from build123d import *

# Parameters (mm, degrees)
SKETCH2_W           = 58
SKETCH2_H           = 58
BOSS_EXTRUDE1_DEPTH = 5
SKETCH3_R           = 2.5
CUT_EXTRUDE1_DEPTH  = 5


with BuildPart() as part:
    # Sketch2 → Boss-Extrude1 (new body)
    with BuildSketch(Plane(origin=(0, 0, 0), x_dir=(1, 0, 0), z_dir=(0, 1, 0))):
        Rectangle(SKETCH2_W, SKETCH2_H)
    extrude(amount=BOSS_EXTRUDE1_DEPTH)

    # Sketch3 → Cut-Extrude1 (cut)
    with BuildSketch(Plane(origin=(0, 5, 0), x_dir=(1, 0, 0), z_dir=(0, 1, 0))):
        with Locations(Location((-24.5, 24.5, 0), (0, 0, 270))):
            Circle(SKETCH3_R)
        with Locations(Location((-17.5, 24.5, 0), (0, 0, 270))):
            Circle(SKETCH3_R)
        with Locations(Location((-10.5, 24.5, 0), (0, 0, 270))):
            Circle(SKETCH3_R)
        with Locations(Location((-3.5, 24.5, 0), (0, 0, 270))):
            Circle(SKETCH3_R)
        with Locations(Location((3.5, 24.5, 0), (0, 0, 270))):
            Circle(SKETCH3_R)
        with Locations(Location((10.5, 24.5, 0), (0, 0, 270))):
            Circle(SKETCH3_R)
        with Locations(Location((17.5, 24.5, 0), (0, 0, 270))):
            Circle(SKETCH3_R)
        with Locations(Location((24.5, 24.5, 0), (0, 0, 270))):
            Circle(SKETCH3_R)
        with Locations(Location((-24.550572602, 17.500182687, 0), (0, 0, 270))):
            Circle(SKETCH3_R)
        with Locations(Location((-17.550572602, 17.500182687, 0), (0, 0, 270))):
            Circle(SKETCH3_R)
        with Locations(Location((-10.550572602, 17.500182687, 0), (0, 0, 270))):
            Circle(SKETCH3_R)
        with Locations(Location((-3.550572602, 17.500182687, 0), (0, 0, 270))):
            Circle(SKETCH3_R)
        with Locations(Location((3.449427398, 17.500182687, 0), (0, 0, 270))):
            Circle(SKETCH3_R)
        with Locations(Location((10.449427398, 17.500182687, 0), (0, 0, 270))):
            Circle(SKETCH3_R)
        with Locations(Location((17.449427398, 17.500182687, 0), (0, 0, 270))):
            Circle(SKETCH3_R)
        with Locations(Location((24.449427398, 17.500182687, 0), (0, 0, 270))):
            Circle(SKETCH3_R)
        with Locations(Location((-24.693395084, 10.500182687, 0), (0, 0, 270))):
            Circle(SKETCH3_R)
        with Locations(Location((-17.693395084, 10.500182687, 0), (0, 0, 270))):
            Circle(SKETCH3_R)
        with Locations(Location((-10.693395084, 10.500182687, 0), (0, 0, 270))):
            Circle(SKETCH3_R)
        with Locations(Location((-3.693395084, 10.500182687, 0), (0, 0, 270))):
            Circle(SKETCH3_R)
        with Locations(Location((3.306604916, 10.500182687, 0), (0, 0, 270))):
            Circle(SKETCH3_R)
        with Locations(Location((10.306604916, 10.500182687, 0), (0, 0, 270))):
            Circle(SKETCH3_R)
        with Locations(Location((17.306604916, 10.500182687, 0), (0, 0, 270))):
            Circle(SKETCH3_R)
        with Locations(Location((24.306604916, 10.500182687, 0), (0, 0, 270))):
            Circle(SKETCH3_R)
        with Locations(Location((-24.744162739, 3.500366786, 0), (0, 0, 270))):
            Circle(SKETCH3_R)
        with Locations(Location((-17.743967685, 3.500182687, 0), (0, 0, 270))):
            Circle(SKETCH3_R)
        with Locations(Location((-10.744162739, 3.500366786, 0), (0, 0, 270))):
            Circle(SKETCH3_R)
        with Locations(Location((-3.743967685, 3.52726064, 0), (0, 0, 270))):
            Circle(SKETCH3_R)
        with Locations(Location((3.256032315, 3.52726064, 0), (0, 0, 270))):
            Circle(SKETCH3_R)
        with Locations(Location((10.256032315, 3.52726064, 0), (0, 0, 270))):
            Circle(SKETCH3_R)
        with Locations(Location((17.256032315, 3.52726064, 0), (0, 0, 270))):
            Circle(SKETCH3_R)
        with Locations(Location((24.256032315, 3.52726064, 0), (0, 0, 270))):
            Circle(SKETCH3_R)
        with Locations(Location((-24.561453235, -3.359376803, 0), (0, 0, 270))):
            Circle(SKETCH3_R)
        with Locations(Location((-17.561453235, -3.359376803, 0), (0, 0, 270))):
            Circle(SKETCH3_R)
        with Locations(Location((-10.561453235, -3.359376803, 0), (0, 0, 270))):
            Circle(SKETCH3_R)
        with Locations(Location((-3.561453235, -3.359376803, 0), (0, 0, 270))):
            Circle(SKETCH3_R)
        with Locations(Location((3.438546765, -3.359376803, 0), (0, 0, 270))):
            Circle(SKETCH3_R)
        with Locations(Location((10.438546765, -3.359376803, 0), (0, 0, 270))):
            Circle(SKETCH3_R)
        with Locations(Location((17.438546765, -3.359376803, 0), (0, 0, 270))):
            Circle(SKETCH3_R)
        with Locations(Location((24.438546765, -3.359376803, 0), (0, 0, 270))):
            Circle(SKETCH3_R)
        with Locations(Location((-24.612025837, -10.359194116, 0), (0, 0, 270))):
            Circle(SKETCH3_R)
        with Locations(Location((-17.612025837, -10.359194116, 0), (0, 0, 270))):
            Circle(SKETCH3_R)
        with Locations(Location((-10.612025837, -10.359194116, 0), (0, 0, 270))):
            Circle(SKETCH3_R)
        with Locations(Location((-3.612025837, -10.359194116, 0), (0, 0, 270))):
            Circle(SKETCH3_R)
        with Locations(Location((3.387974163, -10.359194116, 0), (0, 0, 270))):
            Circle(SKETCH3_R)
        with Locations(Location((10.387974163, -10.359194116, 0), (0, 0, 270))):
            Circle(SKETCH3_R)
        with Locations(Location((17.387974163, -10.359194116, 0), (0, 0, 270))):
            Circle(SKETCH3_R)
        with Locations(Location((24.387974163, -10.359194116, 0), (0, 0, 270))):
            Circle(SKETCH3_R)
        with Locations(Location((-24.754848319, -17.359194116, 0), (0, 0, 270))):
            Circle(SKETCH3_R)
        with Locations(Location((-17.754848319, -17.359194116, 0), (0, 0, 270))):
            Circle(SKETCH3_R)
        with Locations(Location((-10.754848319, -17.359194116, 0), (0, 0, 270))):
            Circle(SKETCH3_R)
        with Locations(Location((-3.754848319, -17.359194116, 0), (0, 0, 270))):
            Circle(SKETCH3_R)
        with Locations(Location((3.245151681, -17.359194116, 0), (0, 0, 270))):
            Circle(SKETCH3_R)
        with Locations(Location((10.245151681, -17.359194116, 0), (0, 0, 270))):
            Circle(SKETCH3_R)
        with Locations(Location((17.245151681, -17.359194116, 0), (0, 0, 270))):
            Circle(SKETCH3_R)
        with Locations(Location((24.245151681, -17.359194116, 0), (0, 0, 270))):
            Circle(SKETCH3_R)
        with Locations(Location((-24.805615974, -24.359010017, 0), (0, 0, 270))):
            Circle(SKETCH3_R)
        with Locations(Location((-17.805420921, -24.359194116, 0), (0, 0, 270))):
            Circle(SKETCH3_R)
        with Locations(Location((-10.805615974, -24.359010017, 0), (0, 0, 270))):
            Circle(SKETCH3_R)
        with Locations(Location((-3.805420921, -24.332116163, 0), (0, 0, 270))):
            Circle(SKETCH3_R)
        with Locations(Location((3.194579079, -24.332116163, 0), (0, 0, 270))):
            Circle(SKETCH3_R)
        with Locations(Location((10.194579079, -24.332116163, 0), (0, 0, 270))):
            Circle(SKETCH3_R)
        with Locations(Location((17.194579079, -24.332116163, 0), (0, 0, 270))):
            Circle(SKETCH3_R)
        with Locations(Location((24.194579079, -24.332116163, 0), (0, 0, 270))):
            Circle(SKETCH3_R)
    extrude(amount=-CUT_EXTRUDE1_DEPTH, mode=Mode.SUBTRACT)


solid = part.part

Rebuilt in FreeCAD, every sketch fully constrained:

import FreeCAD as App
import Part
import Sketcher

doc = App.newDocument("Part")
body = doc.addObject("PartDesign::Body", "Body")

# Sketch on XZ plane
sketch1 = doc.addObject("Sketcher::SketchObject", "Sketch")
body.addObject(sketch1)
sketch1.AttachmentSupport = (doc.XZ_Plane, [""])
sketch1.MapMode = "FlatFace"
sketch1.addGeometry(Part.LineSegment(App.Vector(-29, -29, 0), App.Vector(-29, 29, 0)), False)
sketch1.addGeometry(Part.LineSegment(App.Vector(-29, 29, 0), App.Vector(29, 29, 0)), False)
sketch1.addGeometry(Part.LineSegment(App.Vector(29, 29, 0), App.Vector(29, -29, 0)), False)
sketch1.addGeometry(Part.LineSegment(App.Vector(29, -29, 0), App.Vector(-29, -29, 0)), False)
sketch1.addConstraint(Sketcher.Constraint("Coincident", 0, 2, 1, 1))
sketch1.addConstraint(Sketcher.Constraint("Coincident", 1, 2, 2, 1))
sketch1.addConstraint(Sketcher.Constraint("Coincident", 2, 2, 3, 1))
sketch1.addConstraint(Sketcher.Constraint("Coincident", 3, 2, 0, 1))
sketch1.addConstraint(Sketcher.Constraint("Vertical", 0))
sketch1.addConstraint(Sketcher.Constraint("Horizontal", 1))
sketch1.addConstraint(Sketcher.Constraint("Vertical", 2))
sketch1.addConstraint(Sketcher.Constraint("Horizontal", 3))
sketch1.addConstraint(Sketcher.Constraint("Symmetric", 0, 2, 2, 2, -1, 1))
sketch1.addConstraint(Sketcher.Constraint("Equal", 3, 0))
sketch1.addConstraint(Sketcher.Constraint("DistanceX", 1, 1, 1, 2, 58.0))
pad1 = doc.addObject("PartDesign::Pad", "Pad")
body.addObject(pad1)
pad1.Profile = sketch1
pad1.Length = 5
pad1.Reversed = True

# Sketch on XZ plane
sketch2 = doc.addObject("Sketcher::SketchObject", "Sketch001")
body.addObject(sketch2)
sketch2.AttachmentSupport = (doc.XZ_Plane, [""])
sketch2.MapMode = "FlatFace"
sketch2.AttachmentOffset = App.Placement(App.Vector(0, 0, -5), App.Rotation())
sketch2.addGeometry(Part.Circle(App.Vector(-24.5, -24.5, 0), App.Vector(0, 0, 1), 2.5), False)
sketch2.addGeometry(Part.Circle(App.Vector(-17.5, -24.5, 0), App.Vector(0, 0, 1), 2.5), False)
sketch2.addGeometry(Part.Circle(App.Vector(-10.5, -24.5, 0), App.Vector(0, 0, 1), 2.5), False)
sketch2.addGeometry(Part.Circle(App.Vector(-3.5, -24.5, 0), App.Vector(0, 0, 1), 2.5), False)
sketch2.addGeometry(Part.Circle(App.Vector(3.5, -24.5, 0), App.Vector(0, 0, 1), 2.5), False)
sketch2.addGeometry(Part.Circle(App.Vector(10.5, -24.5, 0), App.Vector(0, 0, 1), 2.5), False)
sketch2.addGeometry(Part.Circle(App.Vector(17.5, -24.5, 0), App.Vector(0, 0, 1), 2.5), False)
sketch2.addGeometry(Part.Circle(App.Vector(24.5, -24.5, 0), App.Vector(0, 0, 1), 2.5), False)
sketch2.addGeometry(Part.Circle(App.Vector(-24.6, -17.5, 0), App.Vector(0, 0, 1), 2.5), False)
sketch2.addGeometry(Part.Circle(App.Vector(-17.6, -17.5, 0), App.Vector(0, 0, 1), 2.5), False)
sketch2.addGeometry(Part.Circle(App.Vector(-10.6, -17.5, 0), App.Vector(0, 0, 1), 2.5), False)
sketch2.addGeometry(Part.Circle(App.Vector(-3.6, -17.5, 0), App.Vector(0, 0, 1), 2.5), False)
sketch2.addGeometry(Part.Circle(App.Vector(3.4, -17.5, 0), App.Vector(0, 0, 1), 2.5), False)
sketch2.addGeometry(Part.Circle(App.Vector(10.4, -17.5, 0), App.Vector(0, 0, 1), 2.5), False)
sketch2.addGeometry(Part.Circle(App.Vector(17.4, -17.5, 0), App.Vector(0, 0, 1), 2.5), False)
sketch2.addGeometry(Part.Circle(App.Vector(24.4, -17.5, 0), App.Vector(0, 0, 1), 2.5), False)
sketch2.addGeometry(Part.Circle(App.Vector(-24.7, -10.5, 0), App.Vector(0, 0, 1), 2.5), False)
sketch2.addGeometry(Part.Circle(App.Vector(-17.7, -10.5, 0), App.Vector(0, 0, 1), 2.5), False)
sketch2.addGeometry(Part.Circle(App.Vector(-10.7, -10.5, 0), App.Vector(0, 0, 1), 2.5), False)
sketch2.addGeometry(Part.Circle(App.Vector(-3.7, -10.5, 0), App.Vector(0, 0, 1), 2.5), False)
sketch2.addGeometry(Part.Circle(App.Vector(3.3, -10.5, 0), App.Vector(0, 0, 1), 2.5), False)
sketch2.addGeometry(Part.Circle(App.Vector(10.3, -10.5, 0), App.Vector(0, 0, 1), 2.5), False)
sketch2.addGeometry(Part.Circle(App.Vector(17.3, -10.5, 0), App.Vector(0, 0, 1), 2.5), False)
sketch2.addGeometry(Part.Circle(App.Vector(24.3, -10.5, 0), App.Vector(0, 0, 1), 2.5), False)
sketch2.addGeometry(Part.Circle(App.Vector(-24.7, -3.5, 0), App.Vector(0, 0, 1), 2.5), False)
sketch2.addGeometry(Part.Circle(App.Vector(-17.7, -3.5, 0), App.Vector(0, 0, 1), 2.5), False)
sketch2.addGeometry(Part.Circle(App.Vector(-10.7, -3.5, 0), App.Vector(0, 0, 1), 2.5), False)
sketch2.addGeometry(Part.Circle(App.Vector(-3.7, -3.5, 0), App.Vector(0, 0, 1), 2.5), False)
sketch2.addGeometry(Part.Circle(App.Vector(3.3, -3.5, 0), App.Vector(0, 0, 1), 2.5), False)
sketch2.addGeometry(Part.Circle(App.Vector(10.3, -3.5, 0), App.Vector(0, 0, 1), 2.5), False)
sketch2.addGeometry(Part.Circle(App.Vector(17.3, -3.5, 0), App.Vector(0, 0, 1), 2.5), False)
sketch2.addGeometry(Part.Circle(App.Vector(24.3, -3.5, 0), App.Vector(0, 0, 1), 2.5), False)
sketch2.addGeometry(Part.Circle(App.Vector(-24.6, 3.4, 0), App.Vector(0, 0, 1), 2.5), False)
sketch2.addGeometry(Part.Circle(App.Vector(-17.6, 3.4, 0), App.Vector(0, 0, 1), 2.5), False)
sketch2.addGeometry(Part.Circle(App.Vector(-10.6, 3.4, 0), App.Vector(0, 0, 1), 2.5), False)
sketch2.addGeometry(Part.Circle(App.Vector(-3.6, 3.4, 0), App.Vector(0, 0, 1), 2.5), False)
sketch2.addGeometry(Part.Circle(App.Vector(3.4, 3.4, 0), App.Vector(0, 0, 1), 2.5), False)
sketch2.addGeometry(Part.Circle(App.Vector(10.4, 3.4, 0), App.Vector(0, 0, 1), 2.5), False)
sketch2.addGeometry(Part.Circle(App.Vector(17.4, 3.4, 0), App.Vector(0, 0, 1), 2.5), False)
sketch2.addGeometry(Part.Circle(App.Vector(24.4, 3.4, 0), App.Vector(0, 0, 1), 2.5), False)
sketch2.addGeometry(Part.Circle(App.Vector(-24.6, 10.4, 0), App.Vector(0, 0, 1), 2.5), False)
sketch2.addGeometry(Part.Circle(App.Vector(-17.6, 10.4, 0), App.Vector(0, 0, 1), 2.5), False)
sketch2.addGeometry(Part.Circle(App.Vector(-10.6, 10.4, 0), App.Vector(0, 0, 1), 2.5), False)
sketch2.addGeometry(Part.Circle(App.Vector(-3.6, 10.4, 0), App.Vector(0, 0, 1), 2.5), False)
sketch2.addGeometry(Part.Circle(App.Vector(3.4, 10.4, 0), App.Vector(0, 0, 1), 2.5), False)
sketch2.addGeometry(Part.Circle(App.Vector(10.4, 10.4, 0), App.Vector(0, 0, 1), 2.5), False)
sketch2.addGeometry(Part.Circle(App.Vector(17.4, 10.4, 0), App.Vector(0, 0, 1), 2.5), False)
sketch2.addGeometry(Part.Circle(App.Vector(24.4, 10.4, 0), App.Vector(0, 0, 1), 2.5), False)
sketch2.addGeometry(Part.Circle(App.Vector(-24.8, 17.4, 0), App.Vector(0, 0, 1), 2.5), False)
sketch2.addGeometry(Part.Circle(App.Vector(-17.8, 17.4, 0), App.Vector(0, 0, 1), 2.5), False)
sketch2.addGeometry(Part.Circle(App.Vector(-10.8, 17.4, 0), App.Vector(0, 0, 1), 2.5), False)
sketch2.addGeometry(Part.Circle(App.Vector(-3.8, 17.4, 0), App.Vector(0, 0, 1), 2.5), False)
sketch2.addGeometry(Part.Circle(App.Vector(3.2, 17.4, 0), App.Vector(0, 0, 1), 2.5), False)
sketch2.addGeometry(Part.Circle(App.Vector(10.2, 17.4, 0), App.Vector(0, 0, 1), 2.5), False)
sketch2.addGeometry(Part.Circle(App.Vector(17.2, 17.4, 0), App.Vector(0, 0, 1), 2.5), False)
sketch2.addGeometry(Part.Circle(App.Vector(24.2, 17.4, 0), App.Vector(0, 0, 1), 2.5), False)
sketch2.addGeometry(Part.Circle(App.Vector(-24.8, 24.4, 0), App.Vector(0, 0, 1), 2.5), False)
sketch2.addGeometry(Part.Circle(App.Vector(-17.8, 24.4, 0), App.Vector(0, 0, 1), 2.5), False)
sketch2.addGeometry(Part.Circle(App.Vector(-10.8, 24.4, 0), App.Vector(0, 0, 1), 2.5), False)
sketch2.addGeometry(Part.Circle(App.Vector(-3.8, 24.3, 0), App.Vector(0, 0, 1), 2.5), False)
sketch2.addGeometry(Part.Circle(App.Vector(3.2, 24.3, 0), App.Vector(0, 0, 1), 2.5), False)
sketch2.addGeometry(Part.Circle(App.Vector(10.2, 24.3, 0), App.Vector(0, 0, 1), 2.5), False)
sketch2.addGeometry(Part.Circle(App.Vector(17.2, 24.3, 0), App.Vector(0, 0, 1), 2.5), False)
sketch2.addGeometry(Part.Circle(App.Vector(24.2, 24.3, 0), App.Vector(0, 0, 1), 2.5), False)
sketch2.addConstraint(Sketcher.Constraint("Equal", 0, 1))
sketch2.addConstraint(Sketcher.Constraint("Equal", 1, 2))
sketch2.addConstraint(Sketcher.Constraint("Equal", 2, 3))
sketch2.addConstraint(Sketcher.Constraint("Equal", 3, 4))
sketch2.addConstraint(Sketcher.Constraint("Equal", 4, 5))
sketch2.addConstraint(Sketcher.Constraint("Equal", 5, 6))
sketch2.addConstraint(Sketcher.Constraint("Equal", 6, 7))
sketch2.addConstraint(Sketcher.Constraint("Equal", 7, 8))
sketch2.addConstraint(Sketcher.Constraint("Equal", 8, 9))
sketch2.addConstraint(Sketcher.Constraint("Equal", 9, 10))
sketch2.addConstraint(Sketcher.Constraint("Equal", 10, 11))
sketch2.addConstraint(Sketcher.Constraint("Equal", 11, 12))
sketch2.addConstraint(Sketcher.Constraint("Equal", 12, 13))
sketch2.addConstraint(Sketcher.Constraint("Equal", 13, 14))
sketch2.addConstraint(Sketcher.Constraint("Equal", 14, 15))
sketch2.addConstraint(Sketcher.Constraint("Equal", 15, 16))
sketch2.addConstraint(Sketcher.Constraint("Equal", 16, 17))
sketch2.addConstraint(Sketcher.Constraint("Equal", 17, 18))
sketch2.addConstraint(Sketcher.Constraint("Equal", 18, 19))
sketch2.addConstraint(Sketcher.Constraint("Equal", 19, 20))
sketch2.addConstraint(Sketcher.Constraint("Equal", 20, 21))
sketch2.addConstraint(Sketcher.Constraint("Equal", 21, 22))
sketch2.addConstraint(Sketcher.Constraint("Equal", 22, 23))
sketch2.addConstraint(Sketcher.Constraint("Equal", 23, 24))
sketch2.addConstraint(Sketcher.Constraint("Equal", 24, 25))
sketch2.addConstraint(Sketcher.Constraint("Equal", 25, 26))
sketch2.addConstraint(Sketcher.Constraint("Equal", 26, 27))
sketch2.addConstraint(Sketcher.Constraint("Equal", 27, 28))
sketch2.addConstraint(Sketcher.Constraint("Equal", 28, 29))
sketch2.addConstraint(Sketcher.Constraint("Equal", 29, 30))
sketch2.addConstraint(Sketcher.Constraint("Equal", 30, 31))
sketch2.addConstraint(Sketcher.Constraint("Equal", 31, 32))
sketch2.addConstraint(Sketcher.Constraint("Equal", 32, 33))
sketch2.addConstraint(Sketcher.Constraint("Equal", 33, 34))
sketch2.addConstraint(Sketcher.Constraint("Equal", 34, 35))
sketch2.addConstraint(Sketcher.Constraint("Equal", 35, 36))
sketch2.addConstraint(Sketcher.Constraint("Equal", 36, 37))
sketch2.addConstraint(Sketcher.Constraint("Equal", 37, 38))
sketch2.addConstraint(Sketcher.Constraint("Equal", 38, 39))
sketch2.addConstraint(Sketcher.Constraint("Equal", 39, 40))
sketch2.addConstraint(Sketcher.Constraint("Equal", 40, 41))
sketch2.addConstraint(Sketcher.Constraint("Equal", 41, 42))
sketch2.addConstraint(Sketcher.Constraint("Equal", 42, 43))
sketch2.addConstraint(Sketcher.Constraint("Equal", 43, 44))
sketch2.addConstraint(Sketcher.Constraint("Equal", 44, 45))
sketch2.addConstraint(Sketcher.Constraint("Equal", 45, 46))
sketch2.addConstraint(Sketcher.Constraint("Equal", 46, 47))
sketch2.addConstraint(Sketcher.Constraint("Equal", 47, 48))
sketch2.addConstraint(Sketcher.Constraint("Equal", 48, 49))
sketch2.addConstraint(Sketcher.Constraint("Equal", 49, 50))
sketch2.addConstraint(Sketcher.Constraint("Equal", 50, 51))
sketch2.addConstraint(Sketcher.Constraint("Equal", 51, 52))
sketch2.addConstraint(Sketcher.Constraint("Equal", 52, 53))
sketch2.addConstraint(Sketcher.Constraint("Equal", 53, 54))
sketch2.addConstraint(Sketcher.Constraint("Equal", 54, 55))
sketch2.addConstraint(Sketcher.Constraint("Equal", 55, 56))
sketch2.addConstraint(Sketcher.Constraint("Equal", 56, 57))
sketch2.addConstraint(Sketcher.Constraint("Equal", 57, 58))
sketch2.addConstraint(Sketcher.Constraint("Equal", 58, 59))
sketch2.addConstraint(Sketcher.Constraint("Equal", 59, 60))
sketch2.addConstraint(Sketcher.Constraint("Equal", 60, 61))
sketch2.addConstraint(Sketcher.Constraint("Equal", 61, 62))
sketch2.addConstraint(Sketcher.Constraint("Equal", 62, 63))
sketch2.addConstraint(Sketcher.Constraint("Symmetric", 3, 3, 4, 3, -2))
sketch2.addConstraint(Sketcher.Constraint("Symmetric", 2, 3, 5, 3, -2))
sketch2.addConstraint(Sketcher.Constraint("Symmetric", 1, 3, 6, 3, -2))
sketch2.addConstraint(Sketcher.Constraint("Symmetric", 0, 3, 7, 3, -2))
sketch2.addConstraint(Sketcher.Constraint("Horizontal", 0, 3, 1, 3))
sketch2.addConstraint(Sketcher.Constraint("Horizontal", 1, 3, 2, 3))
sketch2.addConstraint(Sketcher.Constraint("Horizontal", 2, 3, 3, 3))
sketch2.addConstraint(Sketcher.Constraint("Horizontal", 8, 3, 9, 3))
sketch2.addConstraint(Sketcher.Constraint("Horizontal", 9, 3, 10, 3))
sketch2.addConstraint(Sketcher.Constraint("Horizontal", 10, 3, 11, 3))
sketch2.addConstraint(Sketcher.Constraint("Horizontal", 11, 3, 12, 3))
sketch2.addConstraint(Sketcher.Constraint("Horizontal", 12, 3, 13, 3))
sketch2.addConstraint(Sketcher.Constraint("Horizontal", 13, 3, 14, 3))
sketch2.addConstraint(Sketcher.Constraint("Horizontal", 14, 3, 15, 3))
sketch2.addConstraint(Sketcher.Constraint("Horizontal", 16, 3, 17, 3))
sketch2.addConstraint(Sketcher.Constraint("Horizontal", 17, 3, 18, 3))
sketch2.addConstraint(Sketcher.Constraint("Horizontal", 18, 3, 19, 3))
sketch2.addConstraint(Sketcher.Constraint("Horizontal", 19, 3, 20, 3))
sketch2.addConstraint(Sketcher.Constraint("Horizontal", 20, 3, 21, 3))
sketch2.addConstraint(Sketcher.Constraint("Horizontal", 21, 3, 22, 3))
sketch2.addConstraint(Sketcher.Constraint("Horizontal", 22, 3, 23, 3))
sketch2.addConstraint(Sketcher.Constraint("Horizontal", 24, 3, 26, 3))
sketch2.addConstraint(Sketcher.Constraint("Horizontal", 27, 3, 28, 3))
sketch2.addConstraint(Sketcher.Constraint("Horizontal", 28, 3, 29, 3))
sketch2.addConstraint(Sketcher.Constraint("Horizontal", 29, 3, 30, 3))
sketch2.addConstraint(Sketcher.Constraint("Horizontal", 30, 3, 31, 3))
sketch2.addConstraint(Sketcher.Constraint("Horizontal", 32, 3, 33, 3))
sketch2.addConstraint(Sketcher.Constraint("Horizontal", 33, 3, 34, 3))
sketch2.addConstraint(Sketcher.Constraint("Horizontal", 34, 3, 35, 3))
sketch2.addConstraint(Sketcher.Constraint("Horizontal", 35, 3, 36, 3))
sketch2.addConstraint(Sketcher.Constraint("Horizontal", 36, 3, 37, 3))
sketch2.addConstraint(Sketcher.Constraint("Horizontal", 37, 3, 38, 3))
sketch2.addConstraint(Sketcher.Constraint("Horizontal", 38, 3, 39, 3))
sketch2.addConstraint(Sketcher.Constraint("Horizontal", 40, 3, 41, 3))
sketch2.addConstraint(Sketcher.Constraint("Horizontal", 41, 3, 42, 3))
sketch2.addConstraint(Sketcher.Constraint("Horizontal", 42, 3, 43, 3))
sketch2.addConstraint(Sketcher.Constraint("Horizontal", 43, 3, 44, 3))
sketch2.addConstraint(Sketcher.Constraint("Horizontal", 44, 3, 45, 3))
sketch2.addConstraint(Sketcher.Constraint("Horizontal", 45, 3, 46, 3))
sketch2.addConstraint(Sketcher.Constraint("Horizontal", 46, 3, 47, 3))
sketch2.addConstraint(Sketcher.Constraint("Horizontal", 48, 3, 49, 3))
sketch2.addConstraint(Sketcher.Constraint("Horizontal", 49, 3, 50, 3))
sketch2.addConstraint(Sketcher.Constraint("Horizontal", 50, 3, 51, 3))
sketch2.addConstraint(Sketcher.Constraint("Horizontal", 51, 3, 52, 3))
sketch2.addConstraint(Sketcher.Constraint("Horizontal", 52, 3, 53, 3))
sketch2.addConstraint(Sketcher.Constraint("Horizontal", 53, 3, 54, 3))
sketch2.addConstraint(Sketcher.Constraint("Horizontal", 54, 3, 55, 3))
sketch2.addConstraint(Sketcher.Constraint("Horizontal", 56, 3, 58, 3))
sketch2.addConstraint(Sketcher.Constraint("Horizontal", 59, 3, 60, 3))
sketch2.addConstraint(Sketcher.Constraint("Horizontal", 60, 3, 61, 3))
sketch2.addConstraint(Sketcher.Constraint("Horizontal", 61, 3, 62, 3))
sketch2.addConstraint(Sketcher.Constraint("Horizontal", 62, 3, 63, 3))
sketch2.addConstraint(Sketcher.Constraint("Diameter", 0, 5.0))
sketch2.addConstraint(Sketcher.Constraint("DistanceX", 0, 3, -1, 1, 24.5))
sketch2.addConstraint(Sketcher.Constraint("DistanceY", 0, 3, -1, 1, 24.5))
sketch2.addConstraint(Sketcher.Constraint("DistanceX", 1, 3, -1, 1, 17.5))
sketch2.addConstraint(Sketcher.Constraint("DistanceX", 2, 3, -1, 1, 10.5))
sketch2.addConstraint(Sketcher.Constraint("DistanceX", 3, 3, -1, 1, 3.5))
sketch2.addConstraint(Sketcher.Constraint("DistanceY", 27, 3, -1, 1, 3.527261))
sketch2.addConstraint(Sketcher.Constraint("DistanceX", 48, 3, -1, 1, 24.754848))
sketch2.addConstraint(Sketcher.Constraint("DistanceX", 49, 3, -1, 1, 17.754848))
sketch2.addConstraint(Sketcher.Constraint("DistanceX", 50, 3, -1, 1, 10.754848))
sketch2.addConstraint(Sketcher.Constraint("DistanceX", 51, 3, -1, 1, 3.754848))
sketch2.addConstraint(Sketcher.Constraint("DistanceX", -1, 1, 52, 3, 3.245152))
sketch2.addConstraint(Sketcher.Constraint("DistanceX", -1, 1, 53, 3, 10.245152))
sketch2.addConstraint(Sketcher.Constraint("DistanceX", -1, 1, 54, 3, 17.245152))
sketch2.addConstraint(Sketcher.Constraint("DistanceX", -1, 1, 55, 3, 24.245152))
sketch2.addConstraint(Sketcher.Constraint("DistanceY", -1, 1, 56, 3, 24.35901))
sketch2.addConstraint(Sketcher.Constraint("DistanceX", 57, 3, -1, 1, 17.805421))
sketch2.addConstraint(Sketcher.Constraint("DistanceX", 59, 3, -1, 1, 3.805421))
sketch2.addConstraint(Sketcher.Constraint("DistanceX", -1, 1, 60, 3, 3.194579))
sketch2.addConstraint(Sketcher.Constraint("DistanceX", -1, 1, 61, 3, 10.194579))
sketch2.addConstraint(Sketcher.Constraint("DistanceX", -1, 1, 62, 3, 17.194579))
sketch2.addConstraint(Sketcher.Constraint("DistanceX", -1, 1, 63, 3, 24.194579))
sketch2.addConstraint(Sketcher.Constraint("DistanceX", 8, 3, -1, 1, 24.550573))
sketch2.addConstraint(Sketcher.Constraint("DistanceY", 8, 3, -1, 1, 17.500183))
sketch2.addConstraint(Sketcher.Constraint("DistanceX", 9, 3, -1, 1, 17.550573))
sketch2.addConstraint(Sketcher.Constraint("DistanceX", 10, 3, -1, 1, 10.550573))
sketch2.addConstraint(Sketcher.Constraint("DistanceX", 11, 3, -1, 1, 3.550573))
sketch2.addConstraint(Sketcher.Constraint("DistanceX", -1, 1, 12, 3, 3.449427))
sketch2.addConstraint(Sketcher.Constraint("DistanceX", -1, 1, 13, 3, 10.449427))
sketch2.addConstraint(Sketcher.Constraint("DistanceX", -1, 1, 14, 3, 17.449427))
sketch2.addConstraint(Sketcher.Constraint("DistanceX", -1, 1, 15, 3, 24.449427))
sketch2.addConstraint(Sketcher.Constraint("DistanceX", 16, 3, -1, 1, 24.693395))
sketch2.addConstraint(Sketcher.Constraint("DistanceY", 16, 3, -1, 1, 10.500183))
sketch2.addConstraint(Sketcher.Constraint("DistanceX", 17, 3, -1, 1, 17.693395))
sketch2.addConstraint(Sketcher.Constraint("DistanceX", 18, 3, -1, 1, 10.693395))
sketch2.addConstraint(Sketcher.Constraint("DistanceX", 19, 3, -1, 1, 3.693395))
sketch2.addConstraint(Sketcher.Constraint("DistanceX", -1, 1, 20, 3, 3.306605))
sketch2.addConstraint(Sketcher.Constraint("DistanceX", -1, 1, 21, 3, 10.306605))
sketch2.addConstraint(Sketcher.Constraint("DistanceX", -1, 1, 22, 3, 17.306605))
sketch2.addConstraint(Sketcher.Constraint("DistanceX", -1, 1, 23, 3, 24.306605))
sketch2.addConstraint(Sketcher.Constraint("DistanceX", 24, 3, -1, 1, 24.744163))
sketch2.addConstraint(Sketcher.Constraint("DistanceY", 24, 3, -1, 1, 3.500367))
sketch2.addConstraint(Sketcher.Constraint("DistanceX", 25, 3, -1, 1, 17.743968))
sketch2.addConstraint(Sketcher.Constraint("DistanceY", 25, 3, -1, 1, 3.500183))
sketch2.addConstraint(Sketcher.Constraint("DistanceX", 26, 3, -1, 1, 10.744163))
sketch2.addConstraint(Sketcher.Constraint("DistanceX", 27, 3, -1, 1, 3.743968))
sketch2.addConstraint(Sketcher.Constraint("DistanceX", -1, 1, 28, 3, 3.256032))
sketch2.addConstraint(Sketcher.Constraint("DistanceX", -1, 1, 29, 3, 10.256032))
sketch2.addConstraint(Sketcher.Constraint("DistanceX", -1, 1, 30, 3, 17.256032))
sketch2.addConstraint(Sketcher.Constraint("DistanceX", -1, 1, 31, 3, 24.256032))
sketch2.addConstraint(Sketcher.Constraint("DistanceX", 32, 3, -1, 1, 24.561453))
sketch2.addConstraint(Sketcher.Constraint("DistanceY", -1, 1, 32, 3, 3.359377))
sketch2.addConstraint(Sketcher.Constraint("DistanceX", 33, 3, -1, 1, 17.561453))
sketch2.addConstraint(Sketcher.Constraint("DistanceX", 34, 3, -1, 1, 10.561453))
sketch2.addConstraint(Sketcher.Constraint("DistanceX", 35, 3, -1, 1, 3.561453))
sketch2.addConstraint(Sketcher.Constraint("DistanceX", -1, 1, 36, 3, 3.438547))
sketch2.addConstraint(Sketcher.Constraint("DistanceX", -1, 1, 37, 3, 10.438547))
sketch2.addConstraint(Sketcher.Constraint("DistanceX", -1, 1, 38, 3, 17.438547))
sketch2.addConstraint(Sketcher.Constraint("DistanceX", -1, 1, 39, 3, 24.438547))
sketch2.addConstraint(Sketcher.Constraint("DistanceX", 40, 3, -1, 1, 24.612026))
sketch2.addConstraint(Sketcher.Constraint("DistanceY", -1, 1, 40, 3, 10.359194))
sketch2.addConstraint(Sketcher.Constraint("DistanceX", 41, 3, -1, 1, 17.612026))
sketch2.addConstraint(Sketcher.Constraint("DistanceX", 42, 3, -1, 1, 10.612026))
sketch2.addConstraint(Sketcher.Constraint("DistanceX", 43, 3, -1, 1, 3.612026))
sketch2.addConstraint(Sketcher.Constraint("DistanceX", -1, 1, 44, 3, 3.387974))
sketch2.addConstraint(Sketcher.Constraint("DistanceX", -1, 1, 45, 3, 10.387974))
sketch2.addConstraint(Sketcher.Constraint("DistanceX", -1, 1, 46, 3, 17.387974))
sketch2.addConstraint(Sketcher.Constraint("DistanceX", -1, 1, 47, 3, 24.387974))
sketch2.addConstraint(Sketcher.Constraint("DistanceY", -1, 1, 48, 3, 17.359194))
sketch2.addConstraint(Sketcher.Constraint("DistanceX", 56, 3, -1, 1, 24.805616))
sketch2.addConstraint(Sketcher.Constraint("DistanceY", -1, 1, 57, 3, 24.359194))
sketch2.addConstraint(Sketcher.Constraint("DistanceX", 58, 3, -1, 1, 10.805616))
sketch2.addConstraint(Sketcher.Constraint("DistanceY", -1, 1, 59, 3, 24.332116))
pocket1 = doc.addObject("PartDesign::Pocket", "Pocket")
body.addObject(pocket1)
pocket1.Profile = sketch2
pocket1.Length = 5
pocket1.Reversed = True

doc.recompute()
